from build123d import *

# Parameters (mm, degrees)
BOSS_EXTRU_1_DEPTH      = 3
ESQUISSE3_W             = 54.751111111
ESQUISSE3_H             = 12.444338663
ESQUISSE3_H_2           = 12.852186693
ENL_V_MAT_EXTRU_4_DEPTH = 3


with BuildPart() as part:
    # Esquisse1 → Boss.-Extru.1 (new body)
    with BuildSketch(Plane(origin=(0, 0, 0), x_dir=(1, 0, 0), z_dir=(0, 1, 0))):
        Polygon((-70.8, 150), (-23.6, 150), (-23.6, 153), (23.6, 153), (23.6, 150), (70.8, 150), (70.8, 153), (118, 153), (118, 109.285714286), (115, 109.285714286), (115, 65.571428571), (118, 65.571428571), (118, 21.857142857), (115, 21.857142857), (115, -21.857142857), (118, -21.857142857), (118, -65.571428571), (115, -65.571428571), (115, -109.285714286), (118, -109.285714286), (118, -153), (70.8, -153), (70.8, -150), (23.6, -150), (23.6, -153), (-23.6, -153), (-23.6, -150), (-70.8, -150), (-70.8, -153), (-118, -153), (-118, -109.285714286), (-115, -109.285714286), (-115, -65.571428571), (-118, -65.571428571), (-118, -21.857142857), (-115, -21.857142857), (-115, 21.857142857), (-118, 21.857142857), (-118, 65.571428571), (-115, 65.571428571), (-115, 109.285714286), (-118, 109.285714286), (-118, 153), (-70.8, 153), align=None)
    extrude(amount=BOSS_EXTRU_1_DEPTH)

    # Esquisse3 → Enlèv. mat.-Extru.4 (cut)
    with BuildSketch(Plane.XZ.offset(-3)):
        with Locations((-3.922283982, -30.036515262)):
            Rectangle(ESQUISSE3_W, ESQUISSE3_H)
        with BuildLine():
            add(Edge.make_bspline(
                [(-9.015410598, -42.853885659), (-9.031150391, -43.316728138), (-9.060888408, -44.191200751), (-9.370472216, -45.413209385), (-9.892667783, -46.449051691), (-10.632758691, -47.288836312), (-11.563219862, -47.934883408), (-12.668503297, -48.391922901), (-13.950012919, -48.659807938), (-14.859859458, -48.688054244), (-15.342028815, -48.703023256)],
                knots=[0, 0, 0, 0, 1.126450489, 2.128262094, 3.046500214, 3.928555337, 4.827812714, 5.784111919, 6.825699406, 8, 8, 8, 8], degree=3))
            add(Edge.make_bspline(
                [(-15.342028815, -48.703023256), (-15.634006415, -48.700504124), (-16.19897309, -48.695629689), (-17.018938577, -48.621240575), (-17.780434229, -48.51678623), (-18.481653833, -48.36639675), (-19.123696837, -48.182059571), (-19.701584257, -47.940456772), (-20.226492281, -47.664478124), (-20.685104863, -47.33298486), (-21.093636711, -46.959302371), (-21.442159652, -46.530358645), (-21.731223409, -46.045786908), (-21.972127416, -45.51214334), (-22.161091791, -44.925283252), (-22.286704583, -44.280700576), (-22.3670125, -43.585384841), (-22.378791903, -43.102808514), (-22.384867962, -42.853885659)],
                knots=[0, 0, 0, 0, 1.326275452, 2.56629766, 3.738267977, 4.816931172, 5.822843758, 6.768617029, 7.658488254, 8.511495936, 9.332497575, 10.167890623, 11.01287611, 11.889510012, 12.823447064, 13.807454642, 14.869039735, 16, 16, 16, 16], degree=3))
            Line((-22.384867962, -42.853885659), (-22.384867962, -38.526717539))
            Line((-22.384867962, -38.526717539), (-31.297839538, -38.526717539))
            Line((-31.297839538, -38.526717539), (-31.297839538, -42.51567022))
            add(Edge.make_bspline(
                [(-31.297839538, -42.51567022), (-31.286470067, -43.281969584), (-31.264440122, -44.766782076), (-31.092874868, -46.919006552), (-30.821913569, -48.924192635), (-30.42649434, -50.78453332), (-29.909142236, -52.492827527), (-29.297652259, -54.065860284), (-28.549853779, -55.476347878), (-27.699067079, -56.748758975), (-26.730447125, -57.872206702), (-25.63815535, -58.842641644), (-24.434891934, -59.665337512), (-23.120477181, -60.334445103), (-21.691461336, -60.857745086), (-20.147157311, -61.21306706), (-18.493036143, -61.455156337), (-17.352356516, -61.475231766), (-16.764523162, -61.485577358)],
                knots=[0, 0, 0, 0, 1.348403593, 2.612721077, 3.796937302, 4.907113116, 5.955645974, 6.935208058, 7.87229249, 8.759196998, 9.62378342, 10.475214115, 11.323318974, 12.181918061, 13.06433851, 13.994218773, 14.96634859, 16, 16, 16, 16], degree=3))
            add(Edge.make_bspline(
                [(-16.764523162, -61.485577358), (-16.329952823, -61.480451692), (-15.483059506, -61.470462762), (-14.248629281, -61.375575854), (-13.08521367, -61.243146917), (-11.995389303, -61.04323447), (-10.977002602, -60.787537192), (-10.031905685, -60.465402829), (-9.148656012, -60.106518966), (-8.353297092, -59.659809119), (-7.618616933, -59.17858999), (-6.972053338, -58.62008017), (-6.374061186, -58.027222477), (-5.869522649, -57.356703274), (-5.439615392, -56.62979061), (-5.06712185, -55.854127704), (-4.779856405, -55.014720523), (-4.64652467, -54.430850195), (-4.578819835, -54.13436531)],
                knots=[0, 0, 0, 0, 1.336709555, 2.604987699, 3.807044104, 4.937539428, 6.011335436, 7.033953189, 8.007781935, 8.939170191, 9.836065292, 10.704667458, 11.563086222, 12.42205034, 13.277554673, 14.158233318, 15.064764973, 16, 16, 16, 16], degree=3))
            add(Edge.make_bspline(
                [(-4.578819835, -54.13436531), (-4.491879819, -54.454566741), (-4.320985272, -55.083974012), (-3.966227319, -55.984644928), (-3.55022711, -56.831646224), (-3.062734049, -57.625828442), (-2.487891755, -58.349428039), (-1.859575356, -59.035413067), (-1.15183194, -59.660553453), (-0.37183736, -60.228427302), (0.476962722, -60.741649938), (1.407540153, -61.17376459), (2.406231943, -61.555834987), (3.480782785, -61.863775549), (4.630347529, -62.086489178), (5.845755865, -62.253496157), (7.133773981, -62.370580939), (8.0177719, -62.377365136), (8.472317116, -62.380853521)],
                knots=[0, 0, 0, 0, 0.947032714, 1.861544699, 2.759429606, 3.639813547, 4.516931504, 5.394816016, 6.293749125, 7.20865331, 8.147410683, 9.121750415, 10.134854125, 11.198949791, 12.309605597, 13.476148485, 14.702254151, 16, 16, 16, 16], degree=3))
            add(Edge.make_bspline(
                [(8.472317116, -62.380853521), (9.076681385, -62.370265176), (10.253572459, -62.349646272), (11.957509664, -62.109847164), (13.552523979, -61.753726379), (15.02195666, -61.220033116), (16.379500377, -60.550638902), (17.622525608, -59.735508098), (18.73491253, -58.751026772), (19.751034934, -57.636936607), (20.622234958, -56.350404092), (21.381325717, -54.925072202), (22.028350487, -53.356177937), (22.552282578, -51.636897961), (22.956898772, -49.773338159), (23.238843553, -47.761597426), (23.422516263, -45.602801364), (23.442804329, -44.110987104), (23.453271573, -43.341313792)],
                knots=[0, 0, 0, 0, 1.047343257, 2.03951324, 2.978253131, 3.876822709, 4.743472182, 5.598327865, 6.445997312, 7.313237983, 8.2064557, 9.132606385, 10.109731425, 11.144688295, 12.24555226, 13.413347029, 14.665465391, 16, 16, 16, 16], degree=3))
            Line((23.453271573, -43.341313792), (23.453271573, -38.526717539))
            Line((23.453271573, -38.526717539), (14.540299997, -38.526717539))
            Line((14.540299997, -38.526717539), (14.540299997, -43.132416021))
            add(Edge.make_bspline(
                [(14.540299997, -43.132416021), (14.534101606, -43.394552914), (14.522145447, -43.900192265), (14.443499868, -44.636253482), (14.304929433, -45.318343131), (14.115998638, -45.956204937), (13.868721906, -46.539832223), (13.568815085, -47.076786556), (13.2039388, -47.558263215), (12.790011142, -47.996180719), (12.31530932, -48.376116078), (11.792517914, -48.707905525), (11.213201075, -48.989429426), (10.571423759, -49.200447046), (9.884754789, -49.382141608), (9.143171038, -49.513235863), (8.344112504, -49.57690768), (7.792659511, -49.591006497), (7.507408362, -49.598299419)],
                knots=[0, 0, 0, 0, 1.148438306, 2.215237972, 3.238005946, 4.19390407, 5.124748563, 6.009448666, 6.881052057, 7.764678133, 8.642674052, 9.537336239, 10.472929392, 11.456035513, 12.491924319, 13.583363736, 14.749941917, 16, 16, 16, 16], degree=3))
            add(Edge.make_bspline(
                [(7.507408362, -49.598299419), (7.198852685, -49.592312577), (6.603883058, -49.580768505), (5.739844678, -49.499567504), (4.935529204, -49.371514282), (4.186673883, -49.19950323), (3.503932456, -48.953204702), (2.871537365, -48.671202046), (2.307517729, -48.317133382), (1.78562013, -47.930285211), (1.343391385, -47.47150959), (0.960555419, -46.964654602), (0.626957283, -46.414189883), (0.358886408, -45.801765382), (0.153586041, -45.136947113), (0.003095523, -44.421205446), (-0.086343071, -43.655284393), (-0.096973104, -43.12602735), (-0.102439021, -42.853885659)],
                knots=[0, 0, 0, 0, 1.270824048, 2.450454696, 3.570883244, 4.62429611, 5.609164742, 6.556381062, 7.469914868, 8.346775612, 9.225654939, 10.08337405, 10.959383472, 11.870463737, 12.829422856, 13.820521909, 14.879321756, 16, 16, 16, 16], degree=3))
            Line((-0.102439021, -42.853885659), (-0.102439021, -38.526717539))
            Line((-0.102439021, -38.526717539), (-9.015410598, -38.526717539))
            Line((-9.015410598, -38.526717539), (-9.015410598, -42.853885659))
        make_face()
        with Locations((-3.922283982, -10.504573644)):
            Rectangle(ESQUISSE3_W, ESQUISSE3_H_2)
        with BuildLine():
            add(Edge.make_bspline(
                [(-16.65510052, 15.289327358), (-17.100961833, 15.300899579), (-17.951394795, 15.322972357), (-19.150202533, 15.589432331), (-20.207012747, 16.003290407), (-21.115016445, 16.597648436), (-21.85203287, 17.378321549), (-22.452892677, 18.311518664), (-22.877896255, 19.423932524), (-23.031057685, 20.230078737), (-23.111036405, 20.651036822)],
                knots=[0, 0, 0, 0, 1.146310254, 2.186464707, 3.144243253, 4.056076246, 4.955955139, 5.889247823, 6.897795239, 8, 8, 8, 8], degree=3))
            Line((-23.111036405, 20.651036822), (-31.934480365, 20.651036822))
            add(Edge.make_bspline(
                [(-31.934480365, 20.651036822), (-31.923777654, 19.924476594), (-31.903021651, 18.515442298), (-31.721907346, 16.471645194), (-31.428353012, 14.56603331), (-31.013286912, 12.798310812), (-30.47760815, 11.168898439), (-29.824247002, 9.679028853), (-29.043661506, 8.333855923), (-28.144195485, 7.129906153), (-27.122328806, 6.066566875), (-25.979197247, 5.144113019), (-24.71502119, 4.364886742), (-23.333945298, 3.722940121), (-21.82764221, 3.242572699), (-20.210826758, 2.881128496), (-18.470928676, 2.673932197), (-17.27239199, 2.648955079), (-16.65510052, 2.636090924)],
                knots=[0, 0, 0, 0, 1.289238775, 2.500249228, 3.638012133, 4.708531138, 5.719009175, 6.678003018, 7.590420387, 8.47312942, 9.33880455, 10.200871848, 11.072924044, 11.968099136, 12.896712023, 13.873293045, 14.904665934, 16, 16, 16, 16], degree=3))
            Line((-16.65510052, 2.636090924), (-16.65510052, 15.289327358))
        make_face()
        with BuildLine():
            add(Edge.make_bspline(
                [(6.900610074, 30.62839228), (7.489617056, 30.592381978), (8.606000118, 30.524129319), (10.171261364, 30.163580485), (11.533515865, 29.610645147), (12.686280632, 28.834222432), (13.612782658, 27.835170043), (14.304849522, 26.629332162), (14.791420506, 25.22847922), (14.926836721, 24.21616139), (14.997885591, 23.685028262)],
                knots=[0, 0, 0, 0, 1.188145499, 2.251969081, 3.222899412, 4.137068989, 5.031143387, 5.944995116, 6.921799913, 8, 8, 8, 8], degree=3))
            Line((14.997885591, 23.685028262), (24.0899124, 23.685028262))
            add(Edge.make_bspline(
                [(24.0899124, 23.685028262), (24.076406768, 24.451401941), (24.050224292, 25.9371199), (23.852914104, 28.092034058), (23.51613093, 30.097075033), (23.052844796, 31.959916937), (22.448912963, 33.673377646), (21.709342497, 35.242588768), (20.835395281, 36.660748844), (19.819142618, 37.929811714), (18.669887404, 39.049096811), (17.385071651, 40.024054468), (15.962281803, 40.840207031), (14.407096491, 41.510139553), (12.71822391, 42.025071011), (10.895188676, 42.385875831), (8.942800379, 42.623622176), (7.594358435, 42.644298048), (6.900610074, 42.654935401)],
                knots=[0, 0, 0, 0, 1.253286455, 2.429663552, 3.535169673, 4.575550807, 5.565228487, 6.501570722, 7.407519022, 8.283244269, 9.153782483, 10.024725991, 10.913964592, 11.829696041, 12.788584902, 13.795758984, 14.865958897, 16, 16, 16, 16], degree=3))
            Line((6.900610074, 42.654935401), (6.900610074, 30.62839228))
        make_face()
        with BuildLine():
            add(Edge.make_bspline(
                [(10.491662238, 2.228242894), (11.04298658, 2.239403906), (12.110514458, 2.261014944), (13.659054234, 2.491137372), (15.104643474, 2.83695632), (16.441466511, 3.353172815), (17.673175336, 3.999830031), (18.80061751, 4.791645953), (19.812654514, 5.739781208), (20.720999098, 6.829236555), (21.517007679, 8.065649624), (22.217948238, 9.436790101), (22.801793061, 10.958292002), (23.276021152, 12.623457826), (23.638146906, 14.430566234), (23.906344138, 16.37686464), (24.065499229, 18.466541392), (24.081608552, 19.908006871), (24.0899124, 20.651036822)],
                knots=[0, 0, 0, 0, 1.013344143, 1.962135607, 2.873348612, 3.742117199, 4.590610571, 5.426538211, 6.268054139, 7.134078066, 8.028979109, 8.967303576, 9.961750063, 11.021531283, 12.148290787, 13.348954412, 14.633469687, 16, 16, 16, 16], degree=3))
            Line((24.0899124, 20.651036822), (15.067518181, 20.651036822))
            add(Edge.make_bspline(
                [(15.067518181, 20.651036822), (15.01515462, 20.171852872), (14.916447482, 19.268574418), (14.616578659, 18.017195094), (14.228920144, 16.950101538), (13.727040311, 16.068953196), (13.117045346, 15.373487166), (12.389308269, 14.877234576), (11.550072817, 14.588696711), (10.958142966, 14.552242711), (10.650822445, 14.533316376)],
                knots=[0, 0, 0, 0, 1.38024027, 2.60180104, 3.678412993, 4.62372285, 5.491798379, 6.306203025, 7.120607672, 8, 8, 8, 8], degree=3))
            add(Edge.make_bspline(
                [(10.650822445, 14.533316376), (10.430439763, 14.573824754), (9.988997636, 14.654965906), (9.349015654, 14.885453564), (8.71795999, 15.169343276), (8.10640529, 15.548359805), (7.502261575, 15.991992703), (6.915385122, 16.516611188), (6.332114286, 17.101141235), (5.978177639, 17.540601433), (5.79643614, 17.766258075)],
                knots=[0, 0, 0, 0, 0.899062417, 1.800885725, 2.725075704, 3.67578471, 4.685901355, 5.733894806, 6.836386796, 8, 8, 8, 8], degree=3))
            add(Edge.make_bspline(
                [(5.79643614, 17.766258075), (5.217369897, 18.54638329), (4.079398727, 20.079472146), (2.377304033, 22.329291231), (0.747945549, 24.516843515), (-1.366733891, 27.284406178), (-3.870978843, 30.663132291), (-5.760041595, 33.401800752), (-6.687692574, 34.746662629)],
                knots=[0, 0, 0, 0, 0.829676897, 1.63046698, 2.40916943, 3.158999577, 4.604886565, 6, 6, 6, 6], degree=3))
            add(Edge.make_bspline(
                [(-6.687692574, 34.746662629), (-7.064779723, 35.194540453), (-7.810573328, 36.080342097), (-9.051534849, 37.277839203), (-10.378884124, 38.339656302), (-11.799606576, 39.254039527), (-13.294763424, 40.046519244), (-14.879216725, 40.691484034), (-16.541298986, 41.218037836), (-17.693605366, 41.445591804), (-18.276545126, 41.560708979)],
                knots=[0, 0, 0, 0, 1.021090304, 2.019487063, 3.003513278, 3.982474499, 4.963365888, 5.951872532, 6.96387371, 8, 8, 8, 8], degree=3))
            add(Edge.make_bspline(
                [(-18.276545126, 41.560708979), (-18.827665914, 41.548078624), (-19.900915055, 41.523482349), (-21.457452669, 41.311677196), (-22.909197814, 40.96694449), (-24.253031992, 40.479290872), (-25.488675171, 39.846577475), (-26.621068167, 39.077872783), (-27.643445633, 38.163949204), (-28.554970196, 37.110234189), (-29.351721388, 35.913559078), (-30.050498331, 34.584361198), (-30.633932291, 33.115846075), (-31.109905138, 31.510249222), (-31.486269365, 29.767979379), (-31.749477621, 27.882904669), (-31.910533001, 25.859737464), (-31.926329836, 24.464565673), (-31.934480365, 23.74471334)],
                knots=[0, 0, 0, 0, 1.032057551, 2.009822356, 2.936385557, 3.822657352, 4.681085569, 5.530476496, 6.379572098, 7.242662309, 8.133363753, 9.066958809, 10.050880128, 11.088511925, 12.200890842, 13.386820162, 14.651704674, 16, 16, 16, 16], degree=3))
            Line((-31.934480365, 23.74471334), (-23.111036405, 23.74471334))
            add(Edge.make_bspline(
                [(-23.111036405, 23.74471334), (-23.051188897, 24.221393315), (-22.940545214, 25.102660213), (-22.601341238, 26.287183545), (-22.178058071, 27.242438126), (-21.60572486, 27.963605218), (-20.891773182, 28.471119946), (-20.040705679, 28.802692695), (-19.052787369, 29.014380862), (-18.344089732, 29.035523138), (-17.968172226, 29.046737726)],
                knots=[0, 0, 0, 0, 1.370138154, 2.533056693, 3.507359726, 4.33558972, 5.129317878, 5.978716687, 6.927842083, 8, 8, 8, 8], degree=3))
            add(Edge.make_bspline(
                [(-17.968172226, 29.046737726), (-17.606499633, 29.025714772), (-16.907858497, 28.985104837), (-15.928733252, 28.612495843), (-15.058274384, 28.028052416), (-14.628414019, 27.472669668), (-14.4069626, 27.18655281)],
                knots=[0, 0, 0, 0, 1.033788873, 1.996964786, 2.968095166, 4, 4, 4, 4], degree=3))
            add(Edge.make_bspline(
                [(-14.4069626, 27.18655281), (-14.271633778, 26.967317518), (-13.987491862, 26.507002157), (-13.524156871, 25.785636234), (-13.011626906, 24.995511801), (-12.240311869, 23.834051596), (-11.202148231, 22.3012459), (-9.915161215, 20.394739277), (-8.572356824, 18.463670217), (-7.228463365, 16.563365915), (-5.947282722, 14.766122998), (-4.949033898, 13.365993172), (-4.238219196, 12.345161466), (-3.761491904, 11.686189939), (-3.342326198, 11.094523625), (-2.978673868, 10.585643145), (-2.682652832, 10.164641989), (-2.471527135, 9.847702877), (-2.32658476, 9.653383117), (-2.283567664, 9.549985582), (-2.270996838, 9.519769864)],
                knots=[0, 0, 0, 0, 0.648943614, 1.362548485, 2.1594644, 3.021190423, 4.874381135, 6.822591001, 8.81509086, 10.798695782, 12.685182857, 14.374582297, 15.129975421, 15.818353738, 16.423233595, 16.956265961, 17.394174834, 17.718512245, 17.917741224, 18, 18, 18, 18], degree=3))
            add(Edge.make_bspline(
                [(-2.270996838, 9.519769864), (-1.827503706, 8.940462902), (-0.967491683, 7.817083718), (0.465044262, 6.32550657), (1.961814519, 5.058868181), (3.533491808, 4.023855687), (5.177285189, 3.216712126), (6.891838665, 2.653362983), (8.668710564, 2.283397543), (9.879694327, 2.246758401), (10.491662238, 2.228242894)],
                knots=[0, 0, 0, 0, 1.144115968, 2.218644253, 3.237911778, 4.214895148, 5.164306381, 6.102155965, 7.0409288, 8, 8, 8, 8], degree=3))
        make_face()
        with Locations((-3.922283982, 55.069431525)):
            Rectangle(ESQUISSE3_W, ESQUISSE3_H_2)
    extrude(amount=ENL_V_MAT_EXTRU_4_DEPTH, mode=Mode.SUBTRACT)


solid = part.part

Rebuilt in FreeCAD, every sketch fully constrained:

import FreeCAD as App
import Part
import Sketcher
Q = App.Units.Quantity


def add_polygon(sketch, points):
    """Adds a closed chain of lines whose ends are joined by coincident constraints."""
    first, n = sketch.GeometryCount, len(points)
    for a, b in zip(points, points[1:] + points[:1]):
        sketch.addGeometry(Part.LineSegment(App.Vector(*a, 0), App.Vector(*b, 0)), False)
    for i in range(n):
        sketch.addConstraint(Sketcher.Constraint("Coincident", first + i, 2, first + (i + 1) % n, 1))

doc = App.newDocument("Part")
params = doc.addObject("Spreadsheet::Sheet", "Params")
for row, (alias, value) in enumerate([
    ("sketch1_width", "3 mm"),
    ("sketch1_width2", "47.2 mm"),
    ("pad1_length", "3 mm"),
    ("pocket1_length", "3 mm"),
], start=1):
    params.set(f"A{row}", alias)
    params.set(f"B{row}", "=" + value)
    params.setAlias(f"B{row}", alias)

body = doc.addObject("PartDesign::Body", "Body")

sketch1 = body.newObject("Sketcher::SketchObject", "Sketch")
sketch1.AttachmentSupport = (doc.getObject("XZ_Plane"), [""])
sketch1.MapMode = "FlatFace"
add_polygon(sketch1, [(-23.6, -150), (-70.8, -150), (-70.8, -153), (-118, -153), (-118, -109.3), (-115, -109.3), (-115, -65.6), (-118, -65.6), (-118, -21.9), (-115, -21.9), (-115, 21.9), (-118, 21.9), (-118, 65.6), (-115, 65.6), (-115, 109.3), (-118, 109.3), (-118, 153), (-70.8, 153), (-70.8, 150), (-23.6, 150), (-23.6, 153), (23.6, 153), (23.6, 150), (70.8, 150), (70.8, 153), (118, 153), (118, 109.3), (115, 109.3), (115, 65.6), (118, 65.6), (118, 21.9), (115, 21.9), (115, -21.9), (118, -21.9), (118, -65.6), (115, -65.6), (115, -109.3), (118, -109.3), (118, -153), (70.8, -153), (70.8, -150), (23.6, -150), (23.6, -153), (-23.6, -153)])
sketch1.addConstraint([
    Sketcher.Constraint("Horizontal", 0),
    Sketcher.Constraint("Vertical", 1),
    Sketcher.Constraint("Horizontal", 2),
    Sketcher.Constraint("Vertical", 3),
    Sketcher.Constraint("Horizontal", 4),
    Sketcher.Constraint("Vertical", 5),
    Sketcher.Constraint("Horizontal", 6),
    Sketcher.Constraint("Vertical", 7),
    Sketcher.Constraint("Horizontal", 8),
    Sketcher.Constraint("Vertical", 9),
    Sketcher.Constraint("Horizontal", 10),
    Sketcher.Constraint("Vertical", 11),
    Sketcher.Constraint("Horizontal", 12),
    Sketcher.Constraint("Vertical", 13),
    Sketcher.Constraint("Horizontal", 14),
    Sketcher.Constraint("Vertical", 15),
    Sketcher.Constraint("Horizontal", 16),
    Sketcher.Constraint("Vertical", 17),
    Sketcher.Constraint("Horizontal", 18),
    Sketcher.Constraint("Vertical", 19),
    Sketcher.Constraint("Horizontal", 20),
    Sketcher.Constraint("Vertical", 21),
    Sketcher.Constraint("Horizontal", 22),
    Sketcher.Constraint("Vertical", 23),
    Sketcher.Constraint("Horizontal", 24),
    Sketcher.Constraint("Vertical", 25),
    Sketcher.Constraint("Horizontal", 26),
    Sketcher.Constraint("Vertical", 27),
    Sketcher.Constraint("Horizontal", 28),
    Sketcher.Constraint("Vertical", 29),
    Sketcher.Constraint("Horizontal", 30),
    Sketcher.Constraint("Vertical", 31),
    Sketcher.Constraint("Horizontal", 32),
    Sketcher.Constraint("Vertical", 33),
    Sketcher.Constraint("Horizontal", 34),
    Sketcher.Constraint("Vertical", 35),
    Sketcher.Constraint("Horizontal", 36),
    Sketcher.Constraint("Vertical", 37),
    Sketcher.Constraint("Horizontal", 38),
    Sketcher.Constraint("Vertical", 39),
    Sketcher.Constraint("Horizontal", 40),
    Sketcher.Constraint("Vertical", 41),
    Sketcher.Constraint("Horizontal", 42),
    Sketcher.Constraint("Vertical", 43),
    Sketcher.Constraint("Symmetric", 0, 2, 22, 2, -1, 1),
    Sketcher.Constraint("Symmetric", 2, 2, 24, 2, -1, 1),
    Sketcher.Constraint("Symmetric", 4, 2, 26, 2, -1, 1),
    Sketcher.Constraint("Symmetric", 6, 2, 28, 2, -1, 1),
    Sketcher.Constraint("Symmetric", 8, 2, 30, 2, -1, 1),
    Sketcher.Constraint("Symmetric", 10, 2, 32, 2, -1, 1),
    Sketcher.Constraint("Symmetric", 12, 2, 34, 2, -1, 1),
    Sketcher.Constraint("Symmetric", 14, 2, 36, 2, -1, 1),
    Sketcher.Constraint("Symmetric", 16, 2, 38, 2, -1, 1),
    Sketcher.Constraint("Symmetric", 18, 2, 40, 2, -1, 1),
    Sketcher.Constraint("Symmetric", 20, 2, 42, 2, -1, 1),
    Sketcher.Constraint("Symmetric", 18, 2, 21, 2, -2),
    Sketcher.Constraint("Symmetric", 16, 2, 23, 2, -2),
    Sketcher.Constraint("Symmetric", 14, 2, 25, 2, -2),
    Sketcher.Constraint("Symmetric", 12, 2, 27, 2, -2),
    Sketcher.Constraint("Symmetric", 10, 2, 29, 2, -2),
    Sketcher.Constraint("Horizontal", 16, 2, 19, 2),
    Sketcher.Constraint("Vertical", 3, 2, 6, 2),
    Sketcher.Constraint("Vertical", 5, 2, 8, 2),
    Sketcher.Constraint("Equal", 0, 2),
    Sketcher.Constraint("Equal", 18, 20),
    Sketcher.Constraint("Equal", 36, 1),
    Sketcher.Constraint("Equal", 3, 5),
    Sketcher.Constraint("Equal", 5, 7),
    Sketcher.Constraint("Equal", 7, 9),
    Sketcher.Constraint("DistanceX", 4, 1, 4, 2, Q("3 mm")),
    Sketcher.Constraint("DistanceX", 0, 2, 0, 1, Q("47.2 mm")),
    Sketcher.Constraint("DistanceY", 0, 2, -1, 1, Q("150 mm")),
])
sketch1.setExpression("Constraints[113]", "Params.sketch1_width")
sketch1.setExpression("Constraints[114]", "Params.sketch1_width2")
pad1 = body.newObject("PartDesign::Pad", "Pad")
pad1.Profile = sketch1
pad1.setExpression("Length", "Params.pad1_length")
pad1.Reversed = True

sketch2 = body.newObject("Sketcher::SketchObject", "Sketch001")
sketch2.AttachmentSupport = (doc.getObject("XZ_Plane"), [""])
sketch2.MapMode = "FlatFace"
sketch2.AttachmentOffset = App.Placement(App.Vector(0, 0, -3), App.Rotation())
add_polygon(sketch2, [(-31.29784, -23.814346), (-31.29784, -36.258685), (23.453272, -36.258685), (23.453272, -23.814346)])
sketch2.addGeometry(Part.BSplineCurve([App.Vector(-9.015411, -42.853886, 0), App.Vector(-9.03115, -43.316728, 0), App.Vector(-9.060888, -44.191201, 0), App.Vector(-9.370472, -45.413209, 0), App.Vector(-9.892668, -46.449052, 0), App.Vector(-10.632759, -47.288836, 0), App.Vector(-11.56322, -47.934883, 0), App.Vector(-12.668503, -48.391923, 0), App.Vector(-13.950013, -48.659808, 0), App.Vector(-14.859859, -48.688054, 0), App.Vector(-15.342029, -48.703023, 0)], [4, 1, 1, 1, 1, 1, 1, 1, 4], [0, 1.126450489, 2.128262094, 3.046500214, 3.928555337, 4.827812714, 5.784111919, 6.825699406, 8], False, 3, [1, 1, 1, 1, 1, 1, 1, 1, 1, 1, 1], False), False)
sketch2.addGeometry(Part.BSplineCurve([App.Vector(-15.342029, -48.703023, 0), App.Vector(-15.634006, -48.700504, 0), App.Vector(-16.198973, -48.69563, 0), App.Vector(-17.018939, -48.621241, 0), App.Vector(-17.780434, -48.516786, 0), App.Vector(-18.481654, -48.366397, 0), App.Vector(-19.123697, -48.18206, 0), App.Vector(-19.701584, -47.940457, 0), App.Vector(-20.226492, -47.664478, 0), App.Vector(-20.685105, -47.332985, 0), App.Vector(-21.093637, -46.959302, 0), App.Vector(-21.44216, -46.530359, 0), App.Vector(-21.731223, -46.045787, 0), App.Vector(-21.972127, -45.512143, 0), App.Vector(-22.161092, -44.925283, 0), App.Vector(-22.286705, -44.280701, 0), App.Vector(-22.367013, -43.585385, 0), App.Vector(-22.378792, -43.102809, 0), App.Vector(-22.384868, -42.853886, 0)], [4, 1, 1, 1, 1, 1, 1, 1, 1, 1, 1, 1, 1, 1, 1, 1, 4], [0, 1.326275452, 2.56629766, 3.738267977, 4.816931172, 5.822843758, 6.768617029, 7.658488254, 8.511495936, 9.332497575, 10.167890623, 11.01287611, 11.889510012, 12.823447064, 13.807454642, 14.869039735, 16], False, 3, [1, 1, 1, 1, 1, 1, 1, 1, 1, 1, 1, 1, 1, 1, 1, 1, 1, 1, 1], False), False)
sketch2.addGeometry(Part.LineSegment(App.Vector(-22.384868, -42.853886, 0), App.Vector(-22.384868, -38.526718, 0)), False)
sketch2.addGeometry(Part.LineSegment(App.Vector(-22.384868, -38.526718, 0), App.Vector(-31.29784, -38.526718, 0)), False)
sketch2.addGeometry(Part.LineSegment(App.Vector(-31.29784, -38.526718, 0), App.Vector(-31.29784, -42.51567, 0)), False)
sketch2.addGeometry(Part.BSplineCurve([App.Vector(-31.29784, -42.51567, 0), App.Vector(-31.28647, -43.28197, 0), App.Vector(-31.26444, -44.766782, 0), App.Vector(-31.092875, -46.919007, 0), App.Vector(-30.821914, -48.924193, 0), App.Vector(-30.426494, -50.784533, 0), App.Vector(-29.909142, -52.492828, 0), App.Vector(-29.297652, -54.06586, 0), App.Vector(-28.549854, -55.476348, 0), App.Vector(-27.699067, -56.748759, 0), App.Vector(-26.730447, -57.872207, 0), App.Vector(-25.638155, -58.842642, 0), App.Vector(-24.434892, -59.665338, 0), App.Vector(-23.120477, -60.334445, 0), App.Vector(-21.691461, -60.857745, 0), App.Vector(-20.147157, -61.213067, 0), App.Vector(-18.493036, -61.455156, 0), App.Vector(-17.352357, -61.475232, 0), App.Vector(-16.764523, -61.485577, 0)], [4, 1, 1, 1, 1, 1, 1, 1, 1, 1, 1, 1, 1, 1, 1, 1, 4], [0, 1.348403593, 2.612721077, 3.796937302, 4.907113116, 5.955645974, 6.935208058, 7.87229249, 8.759196998, 9.62378342, 10.475214115, 11.323318974, 12.181918061, 13.06433851, 13.994218773, 14.96634859, 16], False, 3, [1, 1, 1, 1, 1, 1, 1, 1, 1, 1, 1, 1, 1, 1, 1, 1, 1, 1, 1], False), False)
sketch2.addGeometry(Part.BSplineCurve([App.Vector(-16.764523, -61.485577, 0), App.Vector(-16.329953, -61.480452, 0), App.Vector(-15.48306, -61.470463, 0), App.Vector(-14.248629, -61.375576, 0), App.Vector(-13.085214, -61.243147, 0), App.Vector(-11.995389, -61.043234, 0), App.Vector(-10.977003, -60.787537, 0), App.Vector(-10.031906, -60.465403, 0), App.Vector(-9.148656, -60.106519, 0), App.Vector(-8.353297, -59.659809, 0), App.Vector(-7.618617, -59.17859, 0), App.Vector(-6.972053, -58.62008, 0), App.Vector(-6.374061, -58.027222, 0), App.Vector(-5.869523, -57.356703, 0), App.Vector(-5.439615, -56.629791, 0), App.Vector(-5.067122, -55.854128, 0), App.Vector(-4.779856, -55.014721, 0), App.Vector(-4.646525, -54.43085, 0), App.Vector(-4.57882, -54.134365, 0)], [4, 1, 1, 1, 1, 1, 1, 1, 1, 1, 1, 1, 1, 1, 1, 1, 4], [0, 1.336709555, 2.604987699, 3.807044104, 4.937539428, 6.011335436, 7.033953189, 8.007781935, 8.939170191, 9.836065292, 10.704667458, 11.563086222, 12.42205034, 13.277554673, 14.158233318, 15.064764973, 16], False, 3, [1, 1, 1, 1, 1, 1, 1, 1, 1, 1, 1, 1, 1, 1, 1, 1, 1, 1, 1], False), False)
sketch2.addGeometry(Part.BSplineCurve([App.Vector(-4.57882, -54.134365, 0), App.Vector(-4.49188, -54.454567, 0), App.Vector(-4.320985, -55.083974, 0), App.Vector(-3.966227, -55.984645, 0), App.Vector(-3.550227, -56.831646, 0), App.Vector(-3.062734, -57.625828, 0), App.Vector(-2.487892, -58.349428, 0), App.Vector(-1.859575, -59.035413, 0), App.Vector(-1.151832, -59.660553, 0), App.Vector(-0.371837, -60.228427, 0), App.Vector(0.476963, -60.74165, 0), App.Vector(1.40754, -61.173765, 0), App.Vector(2.406232, -61.555835, 0), App.Vector(3.480783, -61.863776, 0), App.Vector(4.630348, -62.086489, 0), App.Vector(5.845756, -62.253496, 0), App.Vector(7.133774, -62.370581, 0), App.Vector(8.017772, -62.377365, 0), App.Vector(8.472317, -62.380854, 0)], [4, 1, 1, 1, 1, 1, 1, 1, 1, 1, 1, 1, 1, 1, 1, 1, 4], [0, 0.947032714, 1.861544699, 2.759429606, 3.639813547, 4.516931504, 5.394816016, 6.293749125, 7.20865331, 8.147410683, 9.121750415, 10.134854125, 11.198949791, 12.309605597, 13.476148485, 14.702254151, 16], False, 3, [1, 1, 1, 1, 1, 1, 1, 1, 1, 1, 1, 1, 1, 1, 1, 1, 1, 1, 1], False), False)
sketch2.addGeometry(Part.BSplineCurve([App.Vector(8.472317, -62.380854, 0), App.Vector(9.076681, -62.370265, 0), App.Vector(10.253572, -62.349646, 0), App.Vector(11.95751, -62.109847, 0), App.Vector(13.552524, -61.753726, 0), App.Vector(15.021957, -61.220033, 0), App.Vector(16.3795, -60.550639, 0), App.Vector(17.622526, -59.735508, 0), App.Vector(18.734913, -58.751027, 0), App.Vector(19.751035, -57.636937, 0), App.Vector(20.622235, -56.350404, 0), App.Vector(21.381326, -54.925072, 0), App.Vector(22.02835, -53.356178, 0), App.Vector(22.552283, -51.636898, 0), App.Vector(22.956899, -49.773338, 0), App.Vector(23.238844, -47.761597, 0), App.Vector(23.422516, -45.602801, 0), App.Vector(23.442804, -44.110987, 0), App.Vector(23.453272, -43.341314, 0)], [4, 1, 1, 1, 1, 1, 1, 1, 1, 1, 1, 1, 1, 1, 1, 1, 4], [0, 1.047343257, 2.03951324, 2.978253131, 3.876822709, 4.743472182, 5.598327865, 6.445997312, 7.313237983, 8.2064557, 9.132606385, 10.109731425, 11.144688295, 12.24555226, 13.413347029, 14.665465391, 16], False, 3, [1, 1, 1, 1, 1, 1, 1, 1, 1, 1, 1, 1, 1, 1, 1, 1, 1, 1, 1], False), False)
sketch2.addGeometry(Part.LineSegment(App.Vector(23.453272, -43.341314, 0), App.Vector(23.453272, -38.526718, 0)), False)
sketch2.addGeometry(Part.LineSegment(App.Vector(23.453272, -38.526718, 0), App.Vector(14.5403, -38.526718, 0)), False)
sketch2.addGeometry(Part.LineSegment(App.Vector(14.5403, -38.526718, 0), App.Vector(14.5403, -43.132416, 0)), False)
sketch2.addGeometry(Part.BSplineCurve([App.Vector(14.5403, -43.132416, 0), App.Vector(14.534102, -43.394553, 0), App.Vector(14.522145, -43.900192, 0), App.Vector(14.4435, -44.636253, 0), App.Vector(14.304929, -45.318343, 0), App.Vector(14.115999, -45.956205, 0), App.Vector(13.868722, -46.539832, 0), App.Vector(13.568815, -47.076787, 0), App.Vector(13.203939, -47.558263, 0), App.Vector(12.790011, -47.996181, 0), App.Vector(12.315309, -48.376116, 0), App.Vector(11.792518, -48.707906, 0), App.Vector(11.213201, -48.989429, 0), App.Vector(10.571424, -49.200447, 0), App.Vector(9.884755, -49.382142, 0), App.Vector(9.143171, -49.513236, 0), App.Vector(8.344113, -49.576908, 0), App.Vector(7.79266, -49.591006, 0), App.Vector(7.507408, -49.598299, 0)], [4, 1, 1, 1, 1, 1, 1, 1, 1, 1, 1, 1, 1, 1, 1, 1, 4], [0, 1.148438306, 2.215237972, 3.238005946, 4.19390407, 5.124748563, 6.009448666, 6.881052057, 7.764678133, 8.642674052, 9.537336239, 10.472929392, 11.456035513, 12.491924319, 13.583363736, 14.749941917, 16], False, 3, [1, 1, 1, 1, 1, 1, 1, 1, 1, 1, 1, 1, 1, 1, 1, 1, 1, 1, 1], False), False)
sketch2.addGeometry(Part.BSplineCurve([App.Vector(7.507408, -49.598299, 0), App.Vector(7.198853, -49.592313, 0), App.Vector(6.603883, -49.580769, 0), App.Vector(5.739845, -49.499568, 0), App.Vector(4.935529, -49.371514, 0), App.Vector(4.186674, -49.199503, 0), App.Vector(3.503932, -48.953205, 0), App.Vector(2.871537, -48.671202, 0), App.Vector(2.307518, -48.317133, 0), App.Vector(1.78562, -47.930285, 0), App.Vector(1.343391, -47.47151, 0), App.Vector(0.960555, -46.964655, 0), App.Vector(0.626957, -46.41419, 0), App.Vector(0.358886, -45.801765, 0), App.Vector(0.153586, -45.136947, 0), App.Vector(0.003096, -44.421205, 0), App.Vector(-0.086343, -43.655284, 0), App.Vector(-0.096973, -43.126027, 0), App.Vector(-0.102439, -42.853886, 0)], [4, 1, 1, 1, 1, 1, 1, 1, 1, 1, 1, 1, 1, 1, 1, 1, 4], [0, 1.270824048, 2.450454696, 3.570883244, 4.62429611, 5.609164742, 6.556381062, 7.469914868, 8.346775612, 9.225654939, 10.08337405, 10.959383472, 11.870463737, 12.829422856, 13.820521909, 14.879321756, 16], False, 3, [1, 1, 1, 1, 1, 1, 1, 1, 1, 1, 1, 1, 1, 1, 1, 1, 1, 1, 1], False), False)
sketch2.addGeometry(Part.LineSegment(App.Vector(-0.102439, -42.853886, 0), App.Vector(-0.102439, -38.526718, 0)), False)
sketch2.addGeometry(Part.LineSegment(App.Vector(-0.102439, -38.526718, 0), App.Vector(-9.015411, -38.526718, 0)), False)
sketch2.addGeometry(Part.LineSegment(App.Vector(-9.015411, -38.526718, 0), App.Vector(-9.015411, -42.853886, 0)), False)
add_polygon(sketch2, [(-31.29784, -4.07848), (-31.29784, -16.930667), (23.453272, -16.930667), (23.453272, -4.07848)])
sketch2.addGeometry(Part.BSplineCurve([App.Vector(-16.655101, 15.289327, 0), App.Vector(-17.100962, 15.3009, 0), App.Vector(-17.951395, 15.322972, 0), App.Vector(-19.150203, 15.589432, 0), App.Vector(-20.207013, 16.00329, 0), App.Vector(-21.115016, 16.597648, 0), App.Vector(-21.852033, 17.378322, 0), App.Vector(-22.452893, 18.311519, 0), App.Vector(-22.877896, 19.423933, 0), App.Vector(-23.031058, 20.230079, 0), App.Vector(-23.111036, 20.651037, 0)], [4, 1, 1, 1, 1, 1, 1, 1, 4], [0, 1.146310254, 2.186464707, 3.144243253, 4.056076246, 4.955955139, 5.889247823, 6.897795239, 8], False, 3, [1, 1, 1, 1, 1, 1, 1, 1, 1, 1, 1], False), False)
sketch2.addGeometry(Part.LineSegment(App.Vector(-23.111036, 20.651037, 0), App.Vector(-31.93448, 20.651037, 0)), False)
sketch2.addGeometry(Part.BSplineCurve([App.Vector(-31.93448, 20.651037, 0), App.Vector(-31.923778, 19.924477, 0), App.Vector(-31.903022, 18.515442, 0), App.Vector(-31.721907, 16.471645, 0), App.Vector(-31.428353, 14.566033, 0), App.Vector(-31.013287, 12.798311, 0), App.Vector(-30.477608, 11.168898, 0), App.Vector(-29.824247, 9.679029, 0), App.Vector(-29.043662, 8.333856, 0), App.Vector(-28.144195, 7.129906, 0), App.Vector(-27.122329, 6.066567, 0), App.Vector(-25.979197, 5.144113, 0), App.Vector(-24.715021, 4.364887, 0), App.Vector(-23.333945, 3.72294, 0), App.Vector(-21.827642, 3.242573, 0), App.Vector(-20.210827, 2.881128, 0), App.Vector(-18.470929, 2.673932, 0), App.Vector(-17.272392, 2.648955, 0), App.Vector(-16.655101, 2.636091, 0)], [4, 1, 1, 1, 1, 1, 1, 1, 1, 1, 1, 1, 1, 1, 1, 1, 4], [0, 1.289238775, 2.500249228, 3.638012133, 4.708531138, 5.719009175, 6.678003018, 7.590420387, 8.47312942, 9.33880455, 10.200871848, 11.072924044, 11.968099136, 12.896712023, 13.873293045, 14.904665934, 16], False, 3, [1, 1, 1, 1, 1, 1, 1, 1, 1, 1, 1, 1, 1, 1, 1, 1, 1, 1, 1], False), False)
sketch2.addGeometry(Part.LineSegment(App.Vector(-16.655101, 2.636091, 0), App.Vector(-16.655101, 15.289327, 0)), False)
sketch2.addGeometry(Part.BSplineCurve([App.Vector(6.90061, 30.628392, 0), App.Vector(7.489617, 30.592382, 0), App.Vector(8.606, 30.524129, 0), App.Vector(10.171261, 30.16358, 0), App.Vector(11.533516, 29.610645, 0), App.Vector(12.686281, 28.834222, 0), App.Vector(13.612783, 27.83517, 0), App.Vector(14.30485, 26.629332, 0), App.Vector(14.791421, 25.228479, 0), App.Vector(14.926837, 24.216161, 0), App.Vector(14.997886, 23.685028, 0)], [4, 1, 1, 1, 1, 1, 1, 1, 4], [0, 1.188145499, 2.251969081, 3.222899412, 4.137068989, 5.031143387, 5.944995116, 6.921799913, 8], False, 3, [1, 1, 1, 1, 1, 1, 1, 1, 1, 1, 1], False), False)
sketch2.addGeometry(Part.LineSegment(App.Vector(14.997886, 23.685028, 0), App.Vector(24.089912, 23.685028, 0)), False)
sketch2.addGeometry(Part.BSplineCurve([App.Vector(24.089912, 23.685028, 0), App.Vector(24.076407, 24.451402, 0), App.Vector(24.050224, 25.93712, 0), App.Vector(23.852914, 28.092034, 0), App.Vector(23.516131, 30.097075, 0), App.Vector(23.052845, 31.959917, 0), App.Vector(22.448913, 33.673378, 0), App.Vector(21.709342, 35.242589, 0), App.Vector(20.835395, 36.660749, 0), App.Vector(19.819143, 37.929812, 0), App.Vector(18.669887, 39.049097, 0), App.Vector(17.385072, 40.024054, 0), App.Vector(15.962282, 40.840207, 0), App.Vector(14.407096, 41.51014, 0), App.Vector(12.718224, 42.025071, 0), App.Vector(10.895189, 42.385876, 0), App.Vector(8.9428, 42.623622, 0), App.Vector(7.594358, 42.644298, 0), App.Vector(6.90061, 42.654935, 0)], [4, 1, 1, 1, 1, 1, 1, 1, 1, 1, 1, 1, 1, 1, 1, 1, 4], [0, 1.253286455, 2.429663552, 3.535169673, 4.575550807, 5.565228487, 6.501570722, 7.407519022, 8.283244269, 9.153782483, 10.024725991, 10.913964592, 11.829696041, 12.788584902, 13.795758984, 14.865958897, 16], False, 3, [1, 1, 1, 1, 1, 1, 1, 1, 1, 1, 1, 1, 1, 1, 1, 1, 1, 1, 1], False), False)
sketch2.addGeometry(Part.LineSegment(App.Vector(6.90061, 42.654935, 0), App.Vector(6.90061, 30.628392, 0)), False)
sketch2.addGeometry(Part.BSplineCurve([App.Vector(10.491662, 2.228243, 0), App.Vector(11.042987, 2.239404, 0), App.Vector(12.110514, 2.261015, 0), App.Vector(13.659054, 2.491137, 0), App.Vector(15.104643, 2.836956, 0), App.Vector(16.441467, 3.353173, 0), App.Vector(17.673175, 3.99983, 0), App.Vector(18.800618, 4.791646, 0), App.Vector(19.812655, 5.739781, 0), App.Vector(20.720999, 6.829237, 0), App.Vector(21.517008, 8.06565, 0), App.Vector(22.217948, 9.43679, 0), App.Vector(22.801793, 10.958292, 0), App.Vector(23.276021, 12.623458, 0), App.Vector(23.638147, 14.430566, 0), App.Vector(23.906344, 16.376865, 0), App.Vector(24.065499, 18.466541, 0), App.Vector(24.081609, 19.908007, 0), App.Vector(24.089912, 20.651037, 0)], [4, 1, 1, 1, 1, 1, 1, 1, 1, 1, 1, 1, 1, 1, 1, 1, 4], [0, 1.013344143, 1.962135607, 2.873348612, 3.742117199, 4.590610571, 5.426538211, 6.268054139, 7.134078066, 8.028979109, 8.967303576, 9.961750063, 11.021531283, 12.148290787, 13.348954412, 14.633469687, 16], False, 3, [1, 1, 1, 1, 1, 1, 1, 1, 1, 1, 1, 1, 1, 1, 1, 1, 1, 1, 1], False), False)
sketch2.addGeometry(Part.LineSegment(App.Vector(24.089912, 20.651037, 0), App.Vector(15.067518, 20.651037, 0)), False)
sketch2.addGeometry(Part.BSplineCurve([App.Vector(15.067518, 20.651037, 0), App.Vector(15.015155, 20.171853, 0), App.Vector(14.916447, 19.268574, 0), App.Vector(14.616579, 18.017195, 0), App.Vector(14.22892, 16.950102, 0), App.Vector(13.72704, 16.068953, 0), App.Vector(13.117045, 15.373487, 0), App.Vector(12.389308, 14.877235, 0), App.Vector(11.550073, 14.588697, 0), App.Vector(10.958143, 14.552243, 0), App.Vector(10.650822, 14.533316, 0)], [4, 1, 1, 1, 1, 1, 1, 1, 4], [0, 1.38024027, 2.60180104, 3.678412993, 4.62372285, 5.491798379, 6.306203025, 7.120607672, 8], False, 3, [1, 1, 1, 1, 1, 1, 1, 1, 1, 1, 1], False), False)
sketch2.addGeometry(Part.BSplineCurve([App.Vector(10.650822, 14.533316, 0), App.Vector(10.43044, 14.573825, 0), App.Vector(9.988998, 14.654966, 0), App.Vector(9.349016, 14.885454, 0), App.Vector(8.71796, 15.169343, 0), App.Vector(8.106405, 15.54836, 0), App.Vector(7.502262, 15.991993, 0), App.Vector(6.915385, 16.516611, 0), App.Vector(6.332114, 17.101141, 0), App.Vector(5.978178, 17.540601, 0), App.Vector(5.796436, 17.766258, 0)], [4, 1, 1, 1, 1, 1, 1, 1, 4], [0, 0.899062417, 1.800885725, 2.725075704, 3.67578471, 4.685901355, 5.733894806, 6.836386796, 8], False, 3, [1, 1, 1, 1, 1, 1, 1, 1, 1, 1, 1], False), False)
sketch2.addGeometry(Part.BSplineCurve([App.Vector(5.796436, 17.766258, 0), App.Vector(5.21737, 18.546383, 0), App.Vector(4.079399, 20.079472, 0), App.Vector(2.377304, 22.329291, 0), App.Vector(0.747946, 24.516844, 0), App.Vector(-1.366734, 27.284406, 0), App.Vector(-3.870979, 30.663132, 0), App.Vector(-5.760042, 33.401801, 0), App.Vector(-6.687693, 34.746663, 0)], [4, 1, 1, 1, 1, 1, 4], [0, 0.829676897, 1.63046698, 2.40916943, 3.158999577, 4.604886565, 6], False, 3, [1, 1, 1, 1, 1, 1, 1, 1, 1], False), False)
sketch2.addGeometry(Part.BSplineCurve([App.Vector(-6.687693, 34.746663, 0), App.Vector(-7.06478, 35.19454, 0), App.Vector(-7.810573, 36.080342, 0), App.Vector(-9.051535, 37.277839, 0), App.Vector(-10.378884, 38.339656, 0), App.Vector(-11.799607, 39.25404, 0), App.Vector(-13.294763, 40.046519, 0), App.Vector(-14.879217, 40.691484, 0), App.Vector(-16.541299, 41.218038, 0), App.Vector(-17.693605, 41.445592, 0), App.Vector(-18.276545, 41.560709, 0)], [4, 1, 1, 1, 1, 1, 1, 1, 4], [0, 1.021090304, 2.019487063, 3.003513278, 3.982474499, 4.963365888, 5.951872532, 6.96387371, 8], False, 3, [1, 1, 1, 1, 1, 1, 1, 1, 1, 1, 1], False), False)
sketch2.addGeometry(Part.BSplineCurve([App.Vector(-18.276545, 41.560709, 0), App.Vector(-18.827666, 41.548079, 0), App.Vector(-19.900915, 41.523482, 0), App.Vector(-21.457453, 41.311677, 0), App.Vector(-22.909198, 40.966944, 0), App.Vector(-24.253032, 40.479291, 0), App.Vector(-25.488675, 39.846577, 0), App.Vector(-26.621068, 39.077873, 0), App.Vector(-27.643446, 38.163949, 0), App.Vector(-28.55497, 37.110234, 0), App.Vector(-29.351721, 35.913559, 0), App.Vector(-30.050498, 34.584361, 0), App.Vector(-30.633932, 33.115846, 0), App.Vector(-31.109905, 31.510249, 0), App.Vector(-31.486269, 29.767979, 0), App.Vector(-31.749478, 27.882905, 0), App.Vector(-31.910533, 25.859737, 0), App.Vector(-31.92633, 24.464566, 0), App.Vector(-31.93448, 23.744713, 0)], [4, 1, 1, 1, 1, 1, 1, 1, 1, 1, 1, 1, 1, 1, 1, 1, 4], [0, 1.032057551, 2.009822356, 2.936385557, 3.822657352, 4.681085569, 5.530476496, 6.379572098, 7.242662309, 8.133363753, 9.066958809, 10.050880128, 11.088511925, 12.200890842, 13.386820162, 14.651704674, 16], False, 3, [1, 1, 1, 1, 1, 1, 1, 1, 1, 1, 1, 1, 1, 1, 1, 1, 1, 1, 1], False), False)
sketch2.addGeometry(Part.LineSegment(App.Vector(-31.93448, 23.744713, 0), App.Vector(-23.111036, 23.744713, 0)), False)
sketch2.addGeometry(Part.BSplineCurve([App.Vector(-23.111036, 23.744713, 0), App.Vector(-23.051189, 24.221393, 0), App.Vector(-22.940545, 25.10266, 0), App.Vector(-22.601341, 26.287184, 0), App.Vector(-22.178058, 27.242438, 0), App.Vector(-21.605725, 27.963605, 0), App.Vector(-20.891773, 28.47112, 0), App.Vector(-20.040706, 28.802693, 0), App.Vector(-19.052787, 29.014381, 0), App.Vector(-18.34409, 29.035523, 0), App.Vector(-17.968172, 29.046738, 0)], [4, 1, 1, 1, 1, 1, 1, 1, 4], [0, 1.370138154, 2.533056693, 3.507359726, 4.33558972, 5.129317878, 5.978716687, 6.927842083, 8], False, 3, [1, 1, 1, 1, 1, 1, 1, 1, 1, 1, 1], False), False)
sketch2.addGeometry(Part.BSplineCurve([App.Vector(-17.968172, 29.046738, 0), App.Vector(-17.6065, 29.025715, 0), App.Vector(-16.907858, 28.985105, 0), App.Vector(-15.928733, 28.612496, 0), App.Vector(-15.058274, 28.028052, 0), App.Vector(-14.628414, 27.47267, 0), App.Vector(-14.406963, 27.186553, 0)], [4, 1, 1, 1, 4], [0, 1.033788873, 1.996964786, 2.968095166, 4], False, 3, [1, 1, 1, 1, 1, 1, 1], False), False)
sketch2.addGeometry(Part.BSplineCurve([App.Vector(-14.406963, 27.186553, 0), App.Vector(-14.271634, 26.967318, 0), App.Vector(-13.987492, 26.507002, 0), App.Vector(-13.524157, 25.785636, 0), App.Vector(-13.011627, 24.995512, 0), App.Vector(-12.240312, 23.834052, 0), App.Vector(-11.202148, 22.301246, 0), App.Vector(-9.915161, 20.394739, 0), App.Vector(-8.572357, 18.46367, 0), App.Vector(-7.228463, 16.563366, 0), App.Vector(-5.947283, 14.766123, 0), App.Vector(-4.949034, 13.365993, 0), App.Vector(-4.238219, 12.345161, 0), App.Vector(-3.761492, 11.68619, 0), App.Vector(-3.342326, 11.094524, 0), App.Vector(-2.978674, 10.585643, 0), App.Vector(-2.682653, 10.164642, 0), App.Vector(-2.471527, 9.847703, 0), App.Vector(-2.326585, 9.653383, 0), App.Vector(-2.283568, 9.549986, 0), App.Vector(-2.270997, 9.51977, 0)], [4, 1, 1, 1, 1, 1, 1, 1, 1, 1, 1, 1, 1, 1, 1, 1, 1, 1, 4], [0, 0.648943614, 1.362548485, 2.1594644, 3.021190423, 4.874381135, 6.822591001, 8.81509086, 10.798695782, 12.685182857, 14.374582297, 15.129975421, 15.818353738, 16.423233595, 16.956265961, 17.394174834, 17.718512245, 17.917741224, 18], False, 3, [1, 1, 1, 1, 1, 1, 1, 1, 1, 1, 1, 1, 1, 1, 1, 1, 1, 1, 1, 1, 1], False), False)
sketch2.addGeometry(Part.BSplineCurve([App.Vector(-2.270997, 9.51977, 0), App.Vector(-1.827504, 8.940463, 0), App.Vector(-0.967492, 7.817084, 0), App.Vector(0.465044, 6.325507, 0), App.Vector(1.961815, 5.058868, 0), App.Vector(3.533492, 4.023856, 0), App.Vector(5.177285, 3.216712, 0), App.Vector(6.891839, 2.653363, 0), App.Vector(8.668711, 2.283398, 0), App.Vector(9.879694, 2.246758, 0), App.Vector(10.491662, 2.228243, 0)], [4, 1, 1, 1, 1, 1, 1, 1, 4], [0, 1.144115968, 2.218644253, 3.237911778, 4.214895148, 5.164306381, 6.102155965, 7.0409288, 8], False, 3, [1, 1, 1, 1, 1, 1, 1, 1, 1, 1, 1], False), False)
add_polygon(sketch2, [(-31.29784, 61.495525), (-31.29784, 48.643338), (23.453272, 48.643338), (23.453272, 61.495525)])
sketch2.addConstraint([
    Sketcher.Constraint("Block", 4),
    Sketcher.Constraint("Block", 5),
    Sketcher.Constraint("Block", 9),
    Sketcher.Constraint("Block", 10),
    Sketcher.Constraint("Block", 11),
    Sketcher.Constraint("Block", 12),
    Sketcher.Constraint("Block", 16),
    Sketcher.Constraint("Block", 17),
    Sketcher.Constraint("Block", 25),
    Sketcher.Constraint("Block", 27),
    Sketcher.Constraint("Block", 29),
    Sketcher.Constraint("Block", 31),
    Sketcher.Constraint("Block", 33),
    Sketcher.Constraint("Block", 35),
    Sketcher.Constraint("Block", 36),
    Sketcher.Constraint("Block", 37),
    Sketcher.Constraint("Block", 38),
    Sketcher.Constraint("Block", 39),
    Sketcher.Constraint("Block", 41),
    Sketcher.Constraint("Block", 42),
    Sketcher.Constraint("Block", 43),
    Sketcher.Constraint("Block", 44),
    Sketcher.Constraint("Coincident", 5, 2, 6, 1),
    Sketcher.Constraint("Coincident", 6, 2, 7, 1),
    Sketcher.Constraint("Coincident", 7, 2, 8, 1),
    Sketcher.Constraint("Coincident", 8, 2, 9, 1),
    Sketcher.Constraint("Coincident", 12, 2, 13, 1),
    Sketcher.Constraint("Coincident", 13, 2, 14, 1),
    Sketcher.Constraint("Coincident", 14, 2, 15, 1),
    Sketcher.Constraint("Coincident", 15, 2, 16, 1),
    Sketcher.Constraint("Coincident", 17, 2, 18, 1),
    Sketcher.Constraint("Coincident", 18, 2, 19, 1),
    Sketcher.Constraint("Coincident", 19, 2, 20, 1),
    Sketcher.Constraint("Coincident", 20, 2, 4, 1),
    Sketcher.Constraint("Coincident", 25, 2, 26, 1),
    Sketcher.Constraint("Coincident", 26, 2, 27, 1),
    Sketcher.Constraint("Coincident", 27, 2, 28, 1),
    Sketcher.Constraint("Coincident", 28, 2, 25, 1),
    Sketcher.Constraint("Coincident", 29, 2, 30, 1),
    Sketcher.Constraint("Coincident", 30, 2, 31, 1),
    Sketcher.Constraint("Coincident", 31, 2, 32, 1),
    Sketcher.Constraint("Coincident", 32, 2, 29, 1),
    Sketcher.Constraint("Coincident", 33, 2, 34, 1),
    Sketcher.Constraint("Coincident", 34, 2, 35, 1),
    Sketcher.Constraint("Coincident", 39, 2, 40, 1),
    Sketcher.Constraint("Coincident", 40, 2, 41, 1),
    Sketcher.Constraint("Vertical", 0),
    Sketcher.Constraint("Horizontal", 1),
    Sketcher.Constraint("Vertical", 2),
    Sketcher.Constraint("Horizontal", 3),
    Sketcher.Constraint("Vertical", 6),
    Sketcher.Constraint("Horizontal", 7),
    Sketcher.Constraint("Vertical", 8),
    Sketcher.Constraint("Vertical", 13),
    Sketcher.Constraint("Horizontal", 14),
    Sketcher.Constraint("Vertical", 15),
    Sketcher.Constraint("Vertical", 18),
    Sketcher.Constraint("Horizontal", 19),
    Sketcher.Constraint("Vertical", 20),
    Sketcher.Constraint("Vertical", 21),
    Sketcher.Constraint("Horizontal", 22),
    Sketcher.Constraint("Vertical", 23),
    Sketcher.Constraint("Horizontal", 24),
    Sketcher.Constraint("Vertical", 45),
    Sketcher.Constraint("Horizontal", 46),
    Sketcher.Constraint("Vertical", 47),
    Sketcher.Constraint("Horizontal", 48),
    Sketcher.Constraint("Horizontal", 7, 2, 13, 2),
    Sketcher.Constraint("Horizontal", 14, 2, 18, 2),
    Sketcher.Constraint("Vertical", 3, 2, 7, 2),
    Sketcher.Constraint("Vertical", 2, 2, 13, 2),
    Sketcher.Constraint("Vertical", 8, 2, 21, 2),
    Sketcher.Constraint("Vertical", 13, 2, 22, 2),
    Sketcher.Constraint("Vertical", 24, 2, 45, 2),
    Sketcher.Constraint("Vertical", 23, 2, 46, 2),
    Sketcher.Constraint("Equal", 23, 45),
    Sketcher.Constraint("DistanceY", 15, 2, 15, 1, Q("4.605698 mm")),
    Sketcher.Constraint("DistanceY", 0, 2, 0, 1, Q("12.444339 mm")),
    Sketcher.Constraint("DistanceY", 26, 2, 45, 2, Q("27.992301 mm")),
    Sketcher.Constraint("DistanceY", 21, 2, 21, 1, Q("12.852187 mm")),
    Sketcher.Constraint("DistanceY", 23, 2, -1, 1, Q("4.07848 mm")),
    Sketcher.Constraint("DistanceY", 6, 2, 3, 2, Q("14.712372 mm")),
])
pocket1 = body.newObject("PartDesign::Pocket", "Pocket")
pocket1.Profile = sketch2
pocket1.setExpression("Length", "Params.pocket1_length")
pocket1.Reversed = True

doc.recompute()
